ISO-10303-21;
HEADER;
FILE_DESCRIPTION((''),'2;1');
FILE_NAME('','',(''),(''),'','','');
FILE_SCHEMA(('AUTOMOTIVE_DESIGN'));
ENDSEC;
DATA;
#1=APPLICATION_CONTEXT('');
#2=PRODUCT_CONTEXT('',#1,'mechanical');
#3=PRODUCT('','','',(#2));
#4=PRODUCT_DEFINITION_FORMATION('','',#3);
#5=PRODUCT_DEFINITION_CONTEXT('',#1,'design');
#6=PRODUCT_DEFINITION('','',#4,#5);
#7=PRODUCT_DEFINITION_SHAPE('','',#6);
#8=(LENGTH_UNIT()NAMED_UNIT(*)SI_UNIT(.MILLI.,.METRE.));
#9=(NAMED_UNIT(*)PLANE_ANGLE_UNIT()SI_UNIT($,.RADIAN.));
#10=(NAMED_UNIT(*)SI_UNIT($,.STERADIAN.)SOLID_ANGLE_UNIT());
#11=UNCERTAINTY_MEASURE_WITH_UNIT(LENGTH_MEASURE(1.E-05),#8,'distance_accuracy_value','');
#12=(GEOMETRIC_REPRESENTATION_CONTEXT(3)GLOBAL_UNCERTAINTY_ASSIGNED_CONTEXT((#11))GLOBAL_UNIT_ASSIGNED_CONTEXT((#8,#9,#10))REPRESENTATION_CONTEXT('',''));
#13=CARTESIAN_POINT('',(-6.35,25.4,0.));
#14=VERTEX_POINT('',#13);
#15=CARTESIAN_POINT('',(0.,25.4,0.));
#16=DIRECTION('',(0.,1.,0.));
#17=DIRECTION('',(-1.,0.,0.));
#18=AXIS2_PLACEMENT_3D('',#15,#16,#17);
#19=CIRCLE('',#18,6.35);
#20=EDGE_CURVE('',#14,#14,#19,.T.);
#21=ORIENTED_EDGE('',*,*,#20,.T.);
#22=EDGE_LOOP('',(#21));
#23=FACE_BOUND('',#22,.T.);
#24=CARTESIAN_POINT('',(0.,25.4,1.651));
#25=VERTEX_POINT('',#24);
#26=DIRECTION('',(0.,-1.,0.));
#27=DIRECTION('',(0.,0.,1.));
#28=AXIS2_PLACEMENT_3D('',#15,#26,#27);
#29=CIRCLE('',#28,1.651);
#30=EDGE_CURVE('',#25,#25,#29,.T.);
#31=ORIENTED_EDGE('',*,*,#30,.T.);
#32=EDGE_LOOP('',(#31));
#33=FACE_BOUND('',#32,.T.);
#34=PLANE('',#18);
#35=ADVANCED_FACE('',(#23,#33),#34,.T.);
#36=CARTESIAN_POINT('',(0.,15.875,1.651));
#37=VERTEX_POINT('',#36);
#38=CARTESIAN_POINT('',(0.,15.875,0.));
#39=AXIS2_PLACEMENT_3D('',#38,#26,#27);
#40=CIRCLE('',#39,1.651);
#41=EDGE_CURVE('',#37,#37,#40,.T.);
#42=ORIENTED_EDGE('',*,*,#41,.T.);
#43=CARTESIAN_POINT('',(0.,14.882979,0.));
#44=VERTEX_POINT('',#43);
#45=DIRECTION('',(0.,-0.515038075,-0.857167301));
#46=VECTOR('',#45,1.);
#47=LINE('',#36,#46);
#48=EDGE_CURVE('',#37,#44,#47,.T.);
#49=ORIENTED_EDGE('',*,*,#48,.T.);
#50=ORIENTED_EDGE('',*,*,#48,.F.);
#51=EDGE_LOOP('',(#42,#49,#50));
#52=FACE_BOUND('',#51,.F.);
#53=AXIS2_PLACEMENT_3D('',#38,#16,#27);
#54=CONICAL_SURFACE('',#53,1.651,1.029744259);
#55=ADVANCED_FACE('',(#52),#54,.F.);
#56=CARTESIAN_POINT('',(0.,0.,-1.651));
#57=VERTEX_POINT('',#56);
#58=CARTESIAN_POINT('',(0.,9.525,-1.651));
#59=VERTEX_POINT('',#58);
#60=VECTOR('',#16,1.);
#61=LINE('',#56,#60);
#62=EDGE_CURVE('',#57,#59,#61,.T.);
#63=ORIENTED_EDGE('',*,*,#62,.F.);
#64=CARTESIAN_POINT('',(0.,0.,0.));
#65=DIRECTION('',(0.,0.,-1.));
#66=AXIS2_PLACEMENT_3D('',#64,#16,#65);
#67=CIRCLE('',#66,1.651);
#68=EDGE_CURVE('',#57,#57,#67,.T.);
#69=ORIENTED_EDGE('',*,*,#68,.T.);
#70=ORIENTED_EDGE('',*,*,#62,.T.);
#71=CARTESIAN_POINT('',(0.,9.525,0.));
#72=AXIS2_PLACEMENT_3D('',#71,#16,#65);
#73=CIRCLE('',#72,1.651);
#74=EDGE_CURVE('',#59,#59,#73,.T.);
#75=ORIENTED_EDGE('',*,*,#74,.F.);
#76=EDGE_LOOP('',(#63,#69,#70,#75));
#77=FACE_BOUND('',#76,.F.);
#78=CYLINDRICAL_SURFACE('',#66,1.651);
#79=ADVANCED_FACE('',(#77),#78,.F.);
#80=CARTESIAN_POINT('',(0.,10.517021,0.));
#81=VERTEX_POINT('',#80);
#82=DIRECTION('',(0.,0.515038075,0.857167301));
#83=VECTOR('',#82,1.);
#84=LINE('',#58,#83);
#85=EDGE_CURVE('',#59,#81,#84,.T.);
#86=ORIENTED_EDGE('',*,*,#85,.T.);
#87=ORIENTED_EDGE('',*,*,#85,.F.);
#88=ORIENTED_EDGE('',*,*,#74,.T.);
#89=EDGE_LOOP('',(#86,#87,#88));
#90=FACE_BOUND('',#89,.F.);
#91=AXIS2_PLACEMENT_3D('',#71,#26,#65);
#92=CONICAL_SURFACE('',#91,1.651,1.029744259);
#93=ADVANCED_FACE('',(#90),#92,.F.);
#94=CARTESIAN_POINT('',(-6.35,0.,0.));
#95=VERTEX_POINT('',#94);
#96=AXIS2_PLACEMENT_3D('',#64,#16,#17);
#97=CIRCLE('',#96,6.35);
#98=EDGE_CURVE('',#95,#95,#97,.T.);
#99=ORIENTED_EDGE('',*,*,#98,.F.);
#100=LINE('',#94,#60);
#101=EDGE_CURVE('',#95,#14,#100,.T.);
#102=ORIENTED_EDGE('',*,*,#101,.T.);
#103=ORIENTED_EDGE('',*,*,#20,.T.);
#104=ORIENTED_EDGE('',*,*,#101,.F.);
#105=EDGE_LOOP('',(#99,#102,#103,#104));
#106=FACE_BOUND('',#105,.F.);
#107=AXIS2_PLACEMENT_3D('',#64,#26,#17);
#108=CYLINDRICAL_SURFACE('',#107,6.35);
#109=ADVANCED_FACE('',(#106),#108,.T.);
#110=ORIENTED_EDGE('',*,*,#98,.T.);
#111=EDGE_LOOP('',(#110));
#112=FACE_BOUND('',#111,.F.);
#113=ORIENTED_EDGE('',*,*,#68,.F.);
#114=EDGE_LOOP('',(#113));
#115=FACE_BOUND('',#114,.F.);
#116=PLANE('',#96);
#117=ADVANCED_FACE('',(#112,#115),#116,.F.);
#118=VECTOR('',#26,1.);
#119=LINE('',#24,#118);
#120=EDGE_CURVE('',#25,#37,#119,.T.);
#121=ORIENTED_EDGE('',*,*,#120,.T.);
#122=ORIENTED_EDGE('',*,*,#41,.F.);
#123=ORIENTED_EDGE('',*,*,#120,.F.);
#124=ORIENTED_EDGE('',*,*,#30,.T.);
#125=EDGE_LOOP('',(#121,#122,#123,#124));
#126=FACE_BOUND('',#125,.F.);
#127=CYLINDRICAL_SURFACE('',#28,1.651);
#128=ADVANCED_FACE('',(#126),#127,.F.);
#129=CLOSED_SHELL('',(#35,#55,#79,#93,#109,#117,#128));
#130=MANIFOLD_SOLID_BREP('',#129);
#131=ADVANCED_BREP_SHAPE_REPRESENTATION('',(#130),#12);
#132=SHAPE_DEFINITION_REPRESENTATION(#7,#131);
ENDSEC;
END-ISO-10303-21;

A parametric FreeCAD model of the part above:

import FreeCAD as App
import Part
import Sketcher
from FreeCAD import Vector
Q = App.Units.Quantity

doc = App.newDocument("Part")
body = doc.addObject("PartDesign::Body", "Body")

# Sketch on XZ plane
sketch1 = doc.addObject("Sketcher::SketchObject", "Sketch")
body.addObject(sketch1)
sketch1.AttachmentSupport = (doc.XZ_Plane, [""])
sketch1.MapMode = "FlatFace"
sketch1.addGeometry(Part.Circle(Vector(0, 0, 0), Vector(0, 0, 1), 6.35), False)
sketch1.addConstraint([
    Sketcher.Constraint("Coincident", 0, 3, -1, 1),
    Sketcher.Constraint("Diameter", 0, Q("0.5 in")),
])
pad1 = doc.addObject("PartDesign::Pad", "Pad")
body.addObject(pad1)
pad1.Profile = sketch1
pad1.Length = Q("1 in")
pad1.Reversed = True

# Sketch on XZ plane
sketch2 = doc.addObject("Sketcher::SketchObject", "Sketch001")
body.addObject(sketch2)
sketch2.AttachmentSupport = (doc.XZ_Plane, [""])
sketch2.MapMode = "FlatFace"
sketch2.AttachmentOffset = App.Placement(Vector(0, 0, -1 * 25.4), App.Rotation())
sketch2.addGeometry(Part.Circle(Vector(0, 0, 0), Vector(0, 0, 1), 1.651), False)
sketch2.addConstraint([
    Sketcher.Constraint("Coincident", 0, 3, -1, 1),
    Sketcher.Constraint("Diameter", 0, Q("0.13 in")),
])
doc.recompute()
hole = doc.addObject("PartDesign::Hole", "Hole")
body.addObject(hole)
hole.Profile = sketch2
hole.ThreadType = "None"
hole.Diameter = Q("0.13 in")
hole.DepthType = "Dimension"
hole.Depth = Q("0.375 in")
hole.DrillPoint = "Angled"
hole.DrillPointAngle = 118
hole.Reversed = True

# Sketch on XZ plane
sketch3 = doc.addObject("Sketcher::SketchObject", "Sketch002")
body.addObject(sketch3)
sketch3.AttachmentSupport = (doc.XZ_Plane, [""])
sketch3.MapMode = "FlatFace"
sketch3.addGeometry(Part.Circle(Vector(0, 0, 0), Vector(0, 0, 1), 1.651), False)
sketch3.addConstraint([
    Sketcher.Constraint("Coincident", 0, 3, -1, 1),
    Sketcher.Constraint("Diameter", 0, Q("0.13 in")),
])
doc.recompute()
hole2 = doc.addObject("PartDesign::Hole", "Hole001")
body.addObject(hole2)
hole2.Profile = sketch3
hole2.ThreadType = "None"
hole2.Diameter = Q("0.13 in")
hole2.DepthType = "Dimension"
hole2.Depth = Q("0.375 in")
hole2.DrillPoint = "Angled"
hole2.DrillPointAngle = 118

doc.recompute()
